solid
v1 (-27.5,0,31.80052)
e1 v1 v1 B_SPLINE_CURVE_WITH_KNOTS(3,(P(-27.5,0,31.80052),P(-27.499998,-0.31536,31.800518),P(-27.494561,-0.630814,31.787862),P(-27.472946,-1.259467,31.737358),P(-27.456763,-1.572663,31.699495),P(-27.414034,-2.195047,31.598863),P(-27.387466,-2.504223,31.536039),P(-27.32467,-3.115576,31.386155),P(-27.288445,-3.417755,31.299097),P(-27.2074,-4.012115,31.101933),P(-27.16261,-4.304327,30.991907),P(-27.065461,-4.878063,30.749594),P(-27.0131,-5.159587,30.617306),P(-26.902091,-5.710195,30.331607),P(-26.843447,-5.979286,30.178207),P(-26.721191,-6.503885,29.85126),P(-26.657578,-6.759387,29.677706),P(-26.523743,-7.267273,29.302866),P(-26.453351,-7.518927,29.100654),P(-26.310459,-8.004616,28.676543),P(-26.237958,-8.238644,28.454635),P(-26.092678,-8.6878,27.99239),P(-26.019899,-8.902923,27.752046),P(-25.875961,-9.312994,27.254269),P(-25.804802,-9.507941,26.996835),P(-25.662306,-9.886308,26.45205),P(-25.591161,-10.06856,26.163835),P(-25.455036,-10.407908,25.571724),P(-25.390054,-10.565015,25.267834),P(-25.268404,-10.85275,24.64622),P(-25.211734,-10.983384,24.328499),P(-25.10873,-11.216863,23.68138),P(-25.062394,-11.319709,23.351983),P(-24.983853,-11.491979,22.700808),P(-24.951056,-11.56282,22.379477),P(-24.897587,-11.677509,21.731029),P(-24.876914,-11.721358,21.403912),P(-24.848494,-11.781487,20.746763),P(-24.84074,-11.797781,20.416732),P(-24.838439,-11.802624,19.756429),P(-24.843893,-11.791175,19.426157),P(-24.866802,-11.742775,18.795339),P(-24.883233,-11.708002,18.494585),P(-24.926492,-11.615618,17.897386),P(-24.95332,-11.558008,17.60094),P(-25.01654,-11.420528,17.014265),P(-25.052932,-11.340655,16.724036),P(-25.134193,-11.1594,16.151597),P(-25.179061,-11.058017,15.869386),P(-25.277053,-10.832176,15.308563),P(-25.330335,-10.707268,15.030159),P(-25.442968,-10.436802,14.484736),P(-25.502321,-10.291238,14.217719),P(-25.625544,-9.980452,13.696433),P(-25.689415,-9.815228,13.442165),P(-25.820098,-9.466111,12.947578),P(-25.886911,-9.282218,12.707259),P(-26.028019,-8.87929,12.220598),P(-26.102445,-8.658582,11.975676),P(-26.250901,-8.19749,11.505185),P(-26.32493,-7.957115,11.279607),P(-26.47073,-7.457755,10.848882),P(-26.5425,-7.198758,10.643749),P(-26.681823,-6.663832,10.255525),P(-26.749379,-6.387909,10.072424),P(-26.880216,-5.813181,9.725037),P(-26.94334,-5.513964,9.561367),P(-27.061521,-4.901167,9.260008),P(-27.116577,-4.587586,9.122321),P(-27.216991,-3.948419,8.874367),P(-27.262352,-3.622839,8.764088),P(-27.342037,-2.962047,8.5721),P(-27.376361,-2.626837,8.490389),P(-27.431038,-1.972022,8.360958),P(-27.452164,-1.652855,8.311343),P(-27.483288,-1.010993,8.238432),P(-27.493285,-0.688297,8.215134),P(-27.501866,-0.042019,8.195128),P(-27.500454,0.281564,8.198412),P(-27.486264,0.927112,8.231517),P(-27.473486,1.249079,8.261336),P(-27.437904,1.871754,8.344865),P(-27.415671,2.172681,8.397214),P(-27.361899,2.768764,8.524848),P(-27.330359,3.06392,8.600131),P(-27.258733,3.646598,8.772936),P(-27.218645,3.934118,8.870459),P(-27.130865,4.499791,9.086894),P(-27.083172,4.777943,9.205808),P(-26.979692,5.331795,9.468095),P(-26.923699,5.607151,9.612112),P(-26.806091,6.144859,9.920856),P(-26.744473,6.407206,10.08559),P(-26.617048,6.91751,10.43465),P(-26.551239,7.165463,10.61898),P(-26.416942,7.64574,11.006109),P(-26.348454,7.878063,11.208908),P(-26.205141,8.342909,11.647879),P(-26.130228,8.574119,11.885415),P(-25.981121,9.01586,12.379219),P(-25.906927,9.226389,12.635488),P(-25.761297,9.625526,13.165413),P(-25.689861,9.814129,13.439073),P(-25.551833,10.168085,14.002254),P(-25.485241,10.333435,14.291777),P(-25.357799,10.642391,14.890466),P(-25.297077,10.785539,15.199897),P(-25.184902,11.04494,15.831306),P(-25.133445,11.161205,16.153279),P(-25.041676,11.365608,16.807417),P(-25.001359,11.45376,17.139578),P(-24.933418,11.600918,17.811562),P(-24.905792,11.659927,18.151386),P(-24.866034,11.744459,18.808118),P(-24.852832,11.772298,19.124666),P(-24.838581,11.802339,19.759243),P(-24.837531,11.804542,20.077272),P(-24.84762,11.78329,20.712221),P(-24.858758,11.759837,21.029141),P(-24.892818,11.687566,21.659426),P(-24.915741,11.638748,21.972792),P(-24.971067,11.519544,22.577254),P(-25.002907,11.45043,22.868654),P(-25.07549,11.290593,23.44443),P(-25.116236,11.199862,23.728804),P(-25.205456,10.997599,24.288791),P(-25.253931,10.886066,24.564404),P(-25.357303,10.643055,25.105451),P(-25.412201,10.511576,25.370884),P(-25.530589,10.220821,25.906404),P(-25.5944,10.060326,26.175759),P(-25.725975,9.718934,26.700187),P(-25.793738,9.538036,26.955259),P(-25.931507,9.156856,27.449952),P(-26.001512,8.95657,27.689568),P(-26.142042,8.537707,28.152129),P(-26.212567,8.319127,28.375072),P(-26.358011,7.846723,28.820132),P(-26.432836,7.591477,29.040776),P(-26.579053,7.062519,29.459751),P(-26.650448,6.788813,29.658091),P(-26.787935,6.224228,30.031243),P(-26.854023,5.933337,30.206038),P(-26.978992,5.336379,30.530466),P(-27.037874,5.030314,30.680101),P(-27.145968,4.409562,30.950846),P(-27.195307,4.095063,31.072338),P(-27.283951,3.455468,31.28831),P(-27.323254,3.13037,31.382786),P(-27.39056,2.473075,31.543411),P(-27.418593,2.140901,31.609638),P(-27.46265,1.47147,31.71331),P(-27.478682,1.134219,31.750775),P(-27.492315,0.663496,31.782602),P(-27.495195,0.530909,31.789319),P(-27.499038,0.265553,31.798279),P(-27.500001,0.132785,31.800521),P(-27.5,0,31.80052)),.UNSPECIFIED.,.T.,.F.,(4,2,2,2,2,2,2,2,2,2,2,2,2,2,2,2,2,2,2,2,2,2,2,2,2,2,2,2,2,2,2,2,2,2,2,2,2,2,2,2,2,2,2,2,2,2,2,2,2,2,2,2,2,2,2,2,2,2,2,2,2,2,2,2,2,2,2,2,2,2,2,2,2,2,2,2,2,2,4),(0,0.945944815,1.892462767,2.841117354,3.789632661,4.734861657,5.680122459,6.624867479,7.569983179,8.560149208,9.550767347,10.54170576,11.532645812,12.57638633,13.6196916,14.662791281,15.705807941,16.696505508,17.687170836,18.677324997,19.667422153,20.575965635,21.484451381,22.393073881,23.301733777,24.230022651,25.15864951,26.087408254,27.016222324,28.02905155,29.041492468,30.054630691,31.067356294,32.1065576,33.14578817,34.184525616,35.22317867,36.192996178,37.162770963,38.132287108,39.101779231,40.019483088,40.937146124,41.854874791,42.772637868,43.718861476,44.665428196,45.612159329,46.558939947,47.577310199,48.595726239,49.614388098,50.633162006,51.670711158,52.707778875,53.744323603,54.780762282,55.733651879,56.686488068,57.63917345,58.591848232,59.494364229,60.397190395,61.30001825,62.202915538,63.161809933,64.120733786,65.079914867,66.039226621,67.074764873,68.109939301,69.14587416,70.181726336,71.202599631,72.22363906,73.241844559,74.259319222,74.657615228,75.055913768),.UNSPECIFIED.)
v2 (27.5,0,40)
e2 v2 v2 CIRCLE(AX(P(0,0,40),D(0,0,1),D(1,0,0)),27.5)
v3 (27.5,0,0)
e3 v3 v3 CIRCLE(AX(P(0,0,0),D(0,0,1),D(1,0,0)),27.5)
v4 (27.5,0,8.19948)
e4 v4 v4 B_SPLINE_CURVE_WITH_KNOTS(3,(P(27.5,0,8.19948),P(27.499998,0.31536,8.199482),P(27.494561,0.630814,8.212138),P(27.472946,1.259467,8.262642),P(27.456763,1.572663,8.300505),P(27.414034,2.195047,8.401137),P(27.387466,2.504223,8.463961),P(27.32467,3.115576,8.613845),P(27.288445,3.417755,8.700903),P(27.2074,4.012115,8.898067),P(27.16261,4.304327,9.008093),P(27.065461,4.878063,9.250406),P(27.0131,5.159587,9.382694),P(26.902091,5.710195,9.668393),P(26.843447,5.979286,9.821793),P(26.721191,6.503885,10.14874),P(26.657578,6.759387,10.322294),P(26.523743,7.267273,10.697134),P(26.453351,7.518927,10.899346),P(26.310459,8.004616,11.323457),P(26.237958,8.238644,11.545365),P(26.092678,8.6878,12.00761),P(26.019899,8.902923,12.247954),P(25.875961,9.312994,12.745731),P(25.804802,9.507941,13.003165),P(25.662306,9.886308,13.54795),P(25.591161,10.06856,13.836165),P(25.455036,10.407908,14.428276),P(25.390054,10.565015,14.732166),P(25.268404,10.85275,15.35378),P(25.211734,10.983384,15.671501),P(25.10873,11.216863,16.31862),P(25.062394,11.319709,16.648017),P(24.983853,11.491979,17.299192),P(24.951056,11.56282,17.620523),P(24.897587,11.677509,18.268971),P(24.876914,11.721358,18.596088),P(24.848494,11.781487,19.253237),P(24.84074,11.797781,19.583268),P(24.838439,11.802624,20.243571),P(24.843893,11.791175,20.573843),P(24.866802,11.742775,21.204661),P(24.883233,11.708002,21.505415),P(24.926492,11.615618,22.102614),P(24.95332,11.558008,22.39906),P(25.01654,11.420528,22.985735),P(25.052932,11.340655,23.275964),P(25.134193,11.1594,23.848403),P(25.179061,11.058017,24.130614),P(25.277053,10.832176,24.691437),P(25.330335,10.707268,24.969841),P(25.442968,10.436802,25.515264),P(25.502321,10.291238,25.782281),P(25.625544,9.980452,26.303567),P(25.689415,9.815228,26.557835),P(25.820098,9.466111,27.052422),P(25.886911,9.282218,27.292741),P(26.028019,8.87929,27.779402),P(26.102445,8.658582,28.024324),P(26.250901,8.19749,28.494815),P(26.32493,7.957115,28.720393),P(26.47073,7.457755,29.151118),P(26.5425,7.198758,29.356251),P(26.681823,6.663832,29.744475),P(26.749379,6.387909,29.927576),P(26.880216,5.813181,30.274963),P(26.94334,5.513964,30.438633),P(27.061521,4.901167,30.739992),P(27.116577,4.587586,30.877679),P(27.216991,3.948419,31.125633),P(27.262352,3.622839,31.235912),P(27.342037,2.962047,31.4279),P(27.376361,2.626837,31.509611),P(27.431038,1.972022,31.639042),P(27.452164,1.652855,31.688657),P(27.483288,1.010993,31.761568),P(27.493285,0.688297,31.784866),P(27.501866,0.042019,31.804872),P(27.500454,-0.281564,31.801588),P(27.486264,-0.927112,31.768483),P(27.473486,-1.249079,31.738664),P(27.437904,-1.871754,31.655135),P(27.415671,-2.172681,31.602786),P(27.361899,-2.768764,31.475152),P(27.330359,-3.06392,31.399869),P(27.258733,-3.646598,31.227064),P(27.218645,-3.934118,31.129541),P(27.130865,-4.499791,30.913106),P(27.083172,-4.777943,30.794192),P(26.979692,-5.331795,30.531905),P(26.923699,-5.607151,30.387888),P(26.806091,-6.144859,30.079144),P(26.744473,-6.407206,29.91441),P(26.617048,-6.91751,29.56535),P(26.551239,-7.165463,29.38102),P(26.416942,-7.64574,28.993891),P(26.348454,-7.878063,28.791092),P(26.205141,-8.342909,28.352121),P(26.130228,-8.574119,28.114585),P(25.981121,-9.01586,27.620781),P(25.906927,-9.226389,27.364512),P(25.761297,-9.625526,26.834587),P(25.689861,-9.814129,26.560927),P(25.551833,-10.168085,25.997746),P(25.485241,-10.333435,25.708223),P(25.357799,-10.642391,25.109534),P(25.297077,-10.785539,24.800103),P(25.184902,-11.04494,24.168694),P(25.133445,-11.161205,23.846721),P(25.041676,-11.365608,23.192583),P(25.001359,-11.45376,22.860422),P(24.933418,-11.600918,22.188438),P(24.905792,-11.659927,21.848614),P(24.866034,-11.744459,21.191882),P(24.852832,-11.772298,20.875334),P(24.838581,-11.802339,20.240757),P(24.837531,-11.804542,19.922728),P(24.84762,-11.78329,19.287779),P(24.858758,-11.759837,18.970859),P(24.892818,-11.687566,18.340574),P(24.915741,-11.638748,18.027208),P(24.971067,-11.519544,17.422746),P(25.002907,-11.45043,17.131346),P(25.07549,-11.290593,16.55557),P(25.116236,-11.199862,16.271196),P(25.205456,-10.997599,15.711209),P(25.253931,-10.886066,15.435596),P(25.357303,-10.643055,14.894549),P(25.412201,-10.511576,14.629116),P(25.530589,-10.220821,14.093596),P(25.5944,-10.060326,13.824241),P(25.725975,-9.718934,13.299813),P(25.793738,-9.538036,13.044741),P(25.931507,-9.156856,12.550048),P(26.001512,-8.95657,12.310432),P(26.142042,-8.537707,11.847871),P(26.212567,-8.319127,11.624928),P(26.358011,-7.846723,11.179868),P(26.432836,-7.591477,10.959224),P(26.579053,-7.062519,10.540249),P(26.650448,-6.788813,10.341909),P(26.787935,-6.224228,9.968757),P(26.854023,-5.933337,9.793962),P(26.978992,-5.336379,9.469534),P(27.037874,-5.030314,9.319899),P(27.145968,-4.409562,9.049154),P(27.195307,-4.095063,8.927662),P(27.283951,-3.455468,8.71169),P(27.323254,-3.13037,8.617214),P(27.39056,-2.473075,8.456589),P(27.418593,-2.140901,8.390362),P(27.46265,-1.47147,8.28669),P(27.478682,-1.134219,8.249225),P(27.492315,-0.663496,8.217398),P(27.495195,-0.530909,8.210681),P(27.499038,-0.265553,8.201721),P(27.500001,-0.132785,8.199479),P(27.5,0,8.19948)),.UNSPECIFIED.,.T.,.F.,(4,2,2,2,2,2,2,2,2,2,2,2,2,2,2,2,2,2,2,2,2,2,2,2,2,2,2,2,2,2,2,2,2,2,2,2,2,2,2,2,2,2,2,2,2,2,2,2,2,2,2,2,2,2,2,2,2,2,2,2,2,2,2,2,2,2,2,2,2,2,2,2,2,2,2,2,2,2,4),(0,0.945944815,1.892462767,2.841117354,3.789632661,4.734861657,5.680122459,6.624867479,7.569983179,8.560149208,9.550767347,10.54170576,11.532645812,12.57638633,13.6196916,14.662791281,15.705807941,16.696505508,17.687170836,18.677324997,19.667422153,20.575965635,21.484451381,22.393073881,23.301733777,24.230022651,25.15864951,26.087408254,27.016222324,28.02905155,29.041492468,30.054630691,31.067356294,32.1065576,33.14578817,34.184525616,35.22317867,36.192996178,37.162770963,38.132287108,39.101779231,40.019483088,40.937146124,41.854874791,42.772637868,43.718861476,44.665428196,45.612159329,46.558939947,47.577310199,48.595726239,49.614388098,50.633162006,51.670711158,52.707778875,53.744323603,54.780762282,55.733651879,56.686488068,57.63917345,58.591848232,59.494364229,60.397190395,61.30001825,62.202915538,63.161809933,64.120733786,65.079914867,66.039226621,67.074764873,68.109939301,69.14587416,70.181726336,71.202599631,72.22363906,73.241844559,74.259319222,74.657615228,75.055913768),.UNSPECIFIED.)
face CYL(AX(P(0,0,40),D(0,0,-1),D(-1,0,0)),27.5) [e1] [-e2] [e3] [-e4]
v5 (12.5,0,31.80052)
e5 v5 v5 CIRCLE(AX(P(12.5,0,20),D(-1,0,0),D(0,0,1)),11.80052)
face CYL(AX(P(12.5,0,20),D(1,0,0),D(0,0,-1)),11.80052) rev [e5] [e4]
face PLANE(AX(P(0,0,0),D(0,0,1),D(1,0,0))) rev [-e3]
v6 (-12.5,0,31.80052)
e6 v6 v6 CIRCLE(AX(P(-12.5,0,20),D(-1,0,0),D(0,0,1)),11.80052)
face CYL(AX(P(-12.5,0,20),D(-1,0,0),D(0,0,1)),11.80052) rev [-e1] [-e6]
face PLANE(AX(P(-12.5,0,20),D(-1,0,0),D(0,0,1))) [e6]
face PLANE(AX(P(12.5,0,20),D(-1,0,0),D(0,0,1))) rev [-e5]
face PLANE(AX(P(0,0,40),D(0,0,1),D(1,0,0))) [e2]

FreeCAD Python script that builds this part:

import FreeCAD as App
import Part
import Sketcher

V = App.Vector

doc = App.newDocument("Part")
params = doc.addObject("Spreadsheet::Sheet", "Params")
for row, (alias, value) in enumerate([
    ("sketch1_diameter", "55 mm"),
    ("pad1_length", "40 mm"),
    ("pocket1_length", "15 mm"),
    ("pocket2_length", "15 mm"),
], start=1):
    params.set(f"A{row}", alias)
    params.set(f"B{row}", "=" + value)
    params.setAlias(f"B{row}", alias)

body = doc.addObject("PartDesign::Body", "Body")

# Sketch on XY plane
sketch1 = doc.addObject("Sketcher::SketchObject", "Sketch")
body.addObject(sketch1)
sketch1.AttachmentSupport = (doc.XY_Plane, [""])
sketch1.MapMode = "FlatFace"
sketch1.addGeometry(Part.Circle(V(0, 0, 0), V(0, 0, 1), 28), False)
sketch1.addConstraint(Sketcher.Constraint("Coincident", 0, 3, -1, 1))
sketch1.addConstraint(Sketcher.Constraint("Diameter", 0, 55.0))
sketch1.setExpression("Constraints[1]", "Params.sketch1_diameter")
pad1 = doc.addObject("PartDesign::Pad", "Pad")
body.addObject(pad1)
pad1.Profile = sketch1
pad1.setExpression("Length", "Params.pad1_length")

# Sketch on YZ plane
sketch2 = doc.addObject("Sketcher::SketchObject", "Sketch001")
body.addObject(sketch2)
sketch2.AttachmentSupport = (doc.YZ_Plane, [""])
sketch2.MapMode = "FlatFace"
sketch2.AttachmentOffset = App.Placement(V(0, 0, -27.5), App.Rotation())
sketch2.addGeometry(Part.Circle(V(0, 20, 0), V(0, 0, 1), 12), False)
sketch2.addConstraint(Sketcher.Constraint("PointOnObject", 0, 3, -2))
sketch2.addConstraint(Sketcher.Constraint("DistanceY", -1, 1, 0, 3, 20.0))
sketch2.addConstraint(Sketcher.Constraint("Diameter", 0, 23.601041))
pocket1 = doc.addObject("PartDesign::Pocket", "Pocket")
body.addObject(pocket1)
pocket1.Profile = sketch2
pocket1.setExpression("Length", "Params.pocket1_length")
pocket1.Reversed = True

# Sketch on YZ plane
sketch3 = doc.addObject("Sketcher::SketchObject", "Sketch002")
body.addObject(sketch3)
sketch3.AttachmentSupport = (doc.YZ_Plane, [""])
sketch3.MapMode = "FlatFace"
sketch3.AttachmentOffset = App.Placement(V(0, 0, 12.5), App.Rotation())
sketch3.addGeometry(Part.Circle(V(0, 20, 0), V(0, 0, 1), 12), False)
sketch3.addConstraint(Sketcher.Constraint("PointOnObject", 0, 3, -2))
sketch3.addConstraint(Sketcher.Constraint("DistanceY", -1, 1, 0, 3, 20.0))
sketch3.addConstraint(Sketcher.Constraint("Diameter", 0, 23.601041))
pocket2 = doc.addObject("PartDesign::Pocket", "Pocket001")
body.addObject(pocket2)
pocket2.Profile = sketch3
pocket2.setExpression("Length", "Params.pocket2_length")
pocket2.Reversed = True

doc.recompute()
